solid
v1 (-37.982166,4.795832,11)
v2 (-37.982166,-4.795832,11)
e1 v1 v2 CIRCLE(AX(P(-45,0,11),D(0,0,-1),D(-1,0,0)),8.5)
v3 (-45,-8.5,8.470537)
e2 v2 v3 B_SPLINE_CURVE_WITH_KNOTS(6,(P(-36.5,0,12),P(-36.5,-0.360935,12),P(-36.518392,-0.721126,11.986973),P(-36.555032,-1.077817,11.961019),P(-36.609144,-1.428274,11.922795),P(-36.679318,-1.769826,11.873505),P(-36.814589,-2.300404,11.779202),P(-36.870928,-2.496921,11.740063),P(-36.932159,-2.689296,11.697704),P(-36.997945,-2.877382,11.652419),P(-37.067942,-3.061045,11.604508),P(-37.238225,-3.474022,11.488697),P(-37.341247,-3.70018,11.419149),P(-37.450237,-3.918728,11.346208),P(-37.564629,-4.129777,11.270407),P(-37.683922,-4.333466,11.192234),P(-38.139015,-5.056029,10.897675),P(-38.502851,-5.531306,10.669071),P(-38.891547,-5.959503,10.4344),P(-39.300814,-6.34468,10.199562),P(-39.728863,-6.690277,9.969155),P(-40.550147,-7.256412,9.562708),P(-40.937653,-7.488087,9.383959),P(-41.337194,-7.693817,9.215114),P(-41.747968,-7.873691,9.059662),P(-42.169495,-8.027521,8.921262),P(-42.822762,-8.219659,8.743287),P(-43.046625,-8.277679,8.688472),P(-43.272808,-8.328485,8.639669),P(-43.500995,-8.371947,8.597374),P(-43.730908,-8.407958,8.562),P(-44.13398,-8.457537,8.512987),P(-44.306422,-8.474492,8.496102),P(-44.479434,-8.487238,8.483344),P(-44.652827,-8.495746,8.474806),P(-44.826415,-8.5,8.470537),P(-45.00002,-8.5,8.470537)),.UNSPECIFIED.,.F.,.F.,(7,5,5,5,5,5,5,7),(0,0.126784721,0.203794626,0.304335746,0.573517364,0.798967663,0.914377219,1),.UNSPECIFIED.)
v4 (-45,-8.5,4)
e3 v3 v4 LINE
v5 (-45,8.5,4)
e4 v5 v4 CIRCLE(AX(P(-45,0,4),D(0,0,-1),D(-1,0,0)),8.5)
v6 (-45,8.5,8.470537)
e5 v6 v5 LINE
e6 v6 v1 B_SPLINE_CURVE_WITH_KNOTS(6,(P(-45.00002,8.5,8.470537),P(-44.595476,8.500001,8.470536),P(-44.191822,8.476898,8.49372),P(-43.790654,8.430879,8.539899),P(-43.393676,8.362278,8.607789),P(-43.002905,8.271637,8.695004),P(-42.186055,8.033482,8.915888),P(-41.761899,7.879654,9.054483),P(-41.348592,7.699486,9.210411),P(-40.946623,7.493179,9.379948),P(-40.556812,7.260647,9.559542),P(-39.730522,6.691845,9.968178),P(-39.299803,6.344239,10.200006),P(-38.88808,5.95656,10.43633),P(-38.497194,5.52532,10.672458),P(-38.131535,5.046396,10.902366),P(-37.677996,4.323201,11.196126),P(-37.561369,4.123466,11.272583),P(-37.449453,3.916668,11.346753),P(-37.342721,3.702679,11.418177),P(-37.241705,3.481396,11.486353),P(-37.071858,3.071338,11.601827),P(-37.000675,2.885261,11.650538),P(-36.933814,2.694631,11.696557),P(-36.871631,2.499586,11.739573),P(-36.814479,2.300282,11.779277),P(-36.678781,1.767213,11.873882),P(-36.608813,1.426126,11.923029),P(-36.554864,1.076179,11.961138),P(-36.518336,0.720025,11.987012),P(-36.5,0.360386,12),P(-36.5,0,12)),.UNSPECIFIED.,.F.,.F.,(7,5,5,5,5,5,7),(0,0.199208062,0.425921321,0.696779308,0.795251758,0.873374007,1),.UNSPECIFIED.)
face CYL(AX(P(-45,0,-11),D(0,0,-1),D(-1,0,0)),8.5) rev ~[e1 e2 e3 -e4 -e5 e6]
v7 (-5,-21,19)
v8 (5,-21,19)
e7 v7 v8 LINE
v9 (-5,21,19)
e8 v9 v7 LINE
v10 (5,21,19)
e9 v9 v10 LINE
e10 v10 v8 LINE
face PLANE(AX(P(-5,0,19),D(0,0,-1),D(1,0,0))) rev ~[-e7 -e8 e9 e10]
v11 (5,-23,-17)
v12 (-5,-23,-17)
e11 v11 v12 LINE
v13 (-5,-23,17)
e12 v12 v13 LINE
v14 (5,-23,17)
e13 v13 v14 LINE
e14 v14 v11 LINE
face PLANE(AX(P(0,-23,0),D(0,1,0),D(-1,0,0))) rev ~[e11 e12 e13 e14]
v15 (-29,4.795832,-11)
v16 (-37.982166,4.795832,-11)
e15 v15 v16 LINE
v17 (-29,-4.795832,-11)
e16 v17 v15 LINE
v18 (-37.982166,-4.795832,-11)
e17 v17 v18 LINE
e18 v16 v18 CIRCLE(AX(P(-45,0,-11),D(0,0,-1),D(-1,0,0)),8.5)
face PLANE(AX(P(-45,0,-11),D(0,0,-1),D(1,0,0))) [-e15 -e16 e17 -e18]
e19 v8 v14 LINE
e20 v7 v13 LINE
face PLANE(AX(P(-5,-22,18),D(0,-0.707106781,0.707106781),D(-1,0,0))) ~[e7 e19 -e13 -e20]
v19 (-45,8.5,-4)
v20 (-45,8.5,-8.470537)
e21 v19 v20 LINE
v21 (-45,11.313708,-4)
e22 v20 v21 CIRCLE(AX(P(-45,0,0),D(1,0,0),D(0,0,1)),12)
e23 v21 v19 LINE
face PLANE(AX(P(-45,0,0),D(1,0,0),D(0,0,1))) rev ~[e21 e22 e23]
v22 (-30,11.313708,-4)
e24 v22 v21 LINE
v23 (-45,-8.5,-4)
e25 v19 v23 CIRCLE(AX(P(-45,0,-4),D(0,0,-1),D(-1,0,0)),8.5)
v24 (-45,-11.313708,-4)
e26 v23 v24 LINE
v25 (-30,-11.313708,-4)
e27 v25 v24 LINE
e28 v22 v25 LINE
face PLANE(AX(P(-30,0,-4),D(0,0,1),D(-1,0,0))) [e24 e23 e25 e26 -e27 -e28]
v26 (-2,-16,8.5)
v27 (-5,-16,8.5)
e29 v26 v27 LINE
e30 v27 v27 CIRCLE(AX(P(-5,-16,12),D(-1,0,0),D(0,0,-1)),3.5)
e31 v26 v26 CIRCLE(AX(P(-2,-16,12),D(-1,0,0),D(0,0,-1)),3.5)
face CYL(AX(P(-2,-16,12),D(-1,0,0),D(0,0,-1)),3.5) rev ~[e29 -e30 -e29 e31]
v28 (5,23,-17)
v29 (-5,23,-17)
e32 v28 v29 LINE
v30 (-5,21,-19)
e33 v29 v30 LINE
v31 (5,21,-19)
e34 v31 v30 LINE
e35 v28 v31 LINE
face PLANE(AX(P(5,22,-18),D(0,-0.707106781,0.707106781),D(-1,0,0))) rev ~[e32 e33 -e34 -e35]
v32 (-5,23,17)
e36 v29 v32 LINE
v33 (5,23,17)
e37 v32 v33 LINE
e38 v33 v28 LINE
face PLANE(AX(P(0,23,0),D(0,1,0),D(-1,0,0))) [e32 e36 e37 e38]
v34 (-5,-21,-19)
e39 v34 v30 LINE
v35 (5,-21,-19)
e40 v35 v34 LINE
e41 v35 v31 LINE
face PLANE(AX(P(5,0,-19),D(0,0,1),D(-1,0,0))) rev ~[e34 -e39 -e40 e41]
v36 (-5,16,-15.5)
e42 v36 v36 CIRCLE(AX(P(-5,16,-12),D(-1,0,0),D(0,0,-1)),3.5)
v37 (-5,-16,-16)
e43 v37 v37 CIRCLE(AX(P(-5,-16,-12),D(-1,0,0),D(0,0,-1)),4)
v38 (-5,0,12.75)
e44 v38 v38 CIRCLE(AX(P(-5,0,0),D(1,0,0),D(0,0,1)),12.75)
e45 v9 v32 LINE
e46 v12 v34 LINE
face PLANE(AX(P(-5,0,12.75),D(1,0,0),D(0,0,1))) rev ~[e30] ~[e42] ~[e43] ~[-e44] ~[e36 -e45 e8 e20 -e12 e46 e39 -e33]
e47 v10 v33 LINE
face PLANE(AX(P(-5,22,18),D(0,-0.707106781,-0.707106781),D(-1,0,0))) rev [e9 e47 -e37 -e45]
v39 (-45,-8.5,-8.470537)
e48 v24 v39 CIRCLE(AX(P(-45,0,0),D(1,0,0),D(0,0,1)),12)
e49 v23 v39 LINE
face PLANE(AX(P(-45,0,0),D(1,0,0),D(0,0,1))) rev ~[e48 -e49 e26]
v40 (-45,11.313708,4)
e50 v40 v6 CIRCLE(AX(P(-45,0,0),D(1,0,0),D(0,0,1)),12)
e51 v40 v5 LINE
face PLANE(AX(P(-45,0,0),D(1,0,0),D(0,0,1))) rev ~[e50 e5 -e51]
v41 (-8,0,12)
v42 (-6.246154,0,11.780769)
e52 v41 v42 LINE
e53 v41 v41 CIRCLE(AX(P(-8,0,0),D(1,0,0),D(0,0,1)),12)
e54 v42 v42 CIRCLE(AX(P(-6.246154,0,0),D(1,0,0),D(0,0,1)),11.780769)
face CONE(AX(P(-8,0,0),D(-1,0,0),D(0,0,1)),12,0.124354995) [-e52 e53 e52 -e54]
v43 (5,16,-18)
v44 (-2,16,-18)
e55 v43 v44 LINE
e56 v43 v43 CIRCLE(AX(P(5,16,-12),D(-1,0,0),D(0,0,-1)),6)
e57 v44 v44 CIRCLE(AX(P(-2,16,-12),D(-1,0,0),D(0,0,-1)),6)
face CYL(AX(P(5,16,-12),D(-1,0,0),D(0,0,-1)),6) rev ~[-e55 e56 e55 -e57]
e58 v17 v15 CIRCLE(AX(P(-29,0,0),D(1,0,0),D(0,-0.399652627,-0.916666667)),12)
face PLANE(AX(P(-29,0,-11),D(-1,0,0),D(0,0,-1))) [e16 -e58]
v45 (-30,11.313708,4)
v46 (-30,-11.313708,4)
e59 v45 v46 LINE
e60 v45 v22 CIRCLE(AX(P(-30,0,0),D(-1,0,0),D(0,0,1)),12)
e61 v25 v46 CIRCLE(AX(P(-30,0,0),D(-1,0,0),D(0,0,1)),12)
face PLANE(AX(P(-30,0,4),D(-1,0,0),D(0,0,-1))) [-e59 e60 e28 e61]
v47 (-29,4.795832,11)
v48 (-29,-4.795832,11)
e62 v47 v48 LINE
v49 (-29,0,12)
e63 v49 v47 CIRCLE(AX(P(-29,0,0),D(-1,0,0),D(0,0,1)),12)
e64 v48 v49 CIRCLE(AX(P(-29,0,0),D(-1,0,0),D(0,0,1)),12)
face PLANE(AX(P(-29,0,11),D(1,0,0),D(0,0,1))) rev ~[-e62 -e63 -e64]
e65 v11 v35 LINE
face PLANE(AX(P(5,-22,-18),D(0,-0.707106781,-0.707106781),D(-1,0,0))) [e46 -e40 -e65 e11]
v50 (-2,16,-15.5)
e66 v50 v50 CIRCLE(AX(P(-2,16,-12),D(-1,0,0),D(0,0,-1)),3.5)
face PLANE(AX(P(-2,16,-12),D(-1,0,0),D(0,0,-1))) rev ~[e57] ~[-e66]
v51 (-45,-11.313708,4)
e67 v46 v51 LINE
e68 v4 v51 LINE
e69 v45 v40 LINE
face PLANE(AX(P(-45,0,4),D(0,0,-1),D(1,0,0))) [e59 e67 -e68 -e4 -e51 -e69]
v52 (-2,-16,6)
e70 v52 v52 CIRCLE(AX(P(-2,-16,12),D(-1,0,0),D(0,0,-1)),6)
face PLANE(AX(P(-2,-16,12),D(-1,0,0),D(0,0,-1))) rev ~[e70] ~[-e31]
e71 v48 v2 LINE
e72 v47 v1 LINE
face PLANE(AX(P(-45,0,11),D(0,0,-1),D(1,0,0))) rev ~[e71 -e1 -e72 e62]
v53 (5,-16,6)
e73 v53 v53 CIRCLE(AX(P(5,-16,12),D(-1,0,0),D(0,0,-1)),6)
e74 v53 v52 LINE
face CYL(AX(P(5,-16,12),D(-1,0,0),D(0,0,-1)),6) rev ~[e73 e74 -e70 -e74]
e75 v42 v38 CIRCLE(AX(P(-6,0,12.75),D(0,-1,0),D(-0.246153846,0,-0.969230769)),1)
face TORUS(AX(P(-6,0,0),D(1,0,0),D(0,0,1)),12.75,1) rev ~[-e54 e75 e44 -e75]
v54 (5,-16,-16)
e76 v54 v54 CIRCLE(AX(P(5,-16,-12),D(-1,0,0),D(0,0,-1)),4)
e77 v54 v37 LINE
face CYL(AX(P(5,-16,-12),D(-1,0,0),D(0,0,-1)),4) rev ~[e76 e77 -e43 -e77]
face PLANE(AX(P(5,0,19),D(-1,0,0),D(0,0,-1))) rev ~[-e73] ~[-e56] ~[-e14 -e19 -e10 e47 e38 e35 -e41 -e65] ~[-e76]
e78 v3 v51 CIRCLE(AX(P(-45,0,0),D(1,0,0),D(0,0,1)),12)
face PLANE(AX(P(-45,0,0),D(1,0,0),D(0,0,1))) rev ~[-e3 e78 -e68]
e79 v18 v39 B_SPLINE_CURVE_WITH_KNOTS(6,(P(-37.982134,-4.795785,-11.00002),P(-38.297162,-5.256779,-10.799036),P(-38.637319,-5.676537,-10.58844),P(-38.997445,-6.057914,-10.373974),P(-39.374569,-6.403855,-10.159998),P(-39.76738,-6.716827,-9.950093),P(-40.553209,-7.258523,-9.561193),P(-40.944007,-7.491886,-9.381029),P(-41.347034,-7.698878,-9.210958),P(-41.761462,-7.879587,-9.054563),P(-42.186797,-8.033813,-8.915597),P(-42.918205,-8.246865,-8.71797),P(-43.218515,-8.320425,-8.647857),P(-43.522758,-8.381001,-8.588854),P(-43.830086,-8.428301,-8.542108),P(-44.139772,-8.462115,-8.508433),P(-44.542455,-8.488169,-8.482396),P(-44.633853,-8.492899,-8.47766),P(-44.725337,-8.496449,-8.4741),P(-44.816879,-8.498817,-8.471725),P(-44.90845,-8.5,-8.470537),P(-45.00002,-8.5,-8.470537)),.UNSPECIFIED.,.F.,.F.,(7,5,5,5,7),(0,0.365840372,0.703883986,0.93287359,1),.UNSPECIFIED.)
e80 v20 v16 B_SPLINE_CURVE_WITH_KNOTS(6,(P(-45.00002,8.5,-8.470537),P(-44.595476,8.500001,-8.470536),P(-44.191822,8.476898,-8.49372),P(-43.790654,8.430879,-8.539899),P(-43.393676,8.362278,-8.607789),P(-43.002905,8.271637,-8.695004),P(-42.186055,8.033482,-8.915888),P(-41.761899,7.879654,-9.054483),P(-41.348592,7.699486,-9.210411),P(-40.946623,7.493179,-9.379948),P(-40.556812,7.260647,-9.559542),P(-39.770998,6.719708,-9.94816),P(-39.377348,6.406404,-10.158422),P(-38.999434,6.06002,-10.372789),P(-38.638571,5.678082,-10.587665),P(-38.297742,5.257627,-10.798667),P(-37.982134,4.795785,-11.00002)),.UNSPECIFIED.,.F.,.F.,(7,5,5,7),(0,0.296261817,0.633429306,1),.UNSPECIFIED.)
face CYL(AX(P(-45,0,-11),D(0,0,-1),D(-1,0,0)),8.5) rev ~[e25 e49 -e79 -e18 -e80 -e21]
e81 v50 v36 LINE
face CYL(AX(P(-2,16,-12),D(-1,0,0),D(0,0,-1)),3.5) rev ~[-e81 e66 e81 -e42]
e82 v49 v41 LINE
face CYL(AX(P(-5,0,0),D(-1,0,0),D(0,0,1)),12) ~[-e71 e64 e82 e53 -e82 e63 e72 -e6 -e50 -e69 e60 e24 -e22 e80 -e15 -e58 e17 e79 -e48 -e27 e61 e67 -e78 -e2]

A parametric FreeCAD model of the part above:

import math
import FreeCAD as App
import Part
import Sketcher

V = App.Vector
Q = App.Units.Quantity


def edges_at(feature, points):
    """Names of the edges that pass closest to the given points."""
    edges = feature.Shape.Edges
    near = lambda p: min(range(len(edges)), key=lambda i: edges[i].distToShape(Part.Vertex(*p))[0])
    return sorted({f"Edge{near(p) + 1}" for p in points})


def add_polygon(sketch, points):
    """Adds a closed chain of lines whose ends are joined by coincident constraints."""
    first, n = sketch.GeometryCount, len(points)
    for a, b in zip(points, points[1:] + points[:1]):
        sketch.addGeometry(Part.LineSegment(App.Vector(*a, 0), App.Vector(*b, 0)), False)
    for i in range(n):
        sketch.addConstraint(Sketcher.Constraint("Coincident", first + i, 2, first + (i + 1) % n, 1))

doc = App.newDocument("Part")
body = doc.addObject("PartDesign::Body", "Body")

# Sketch on XZ plane
sketch1 = body.newObject("Sketcher::SketchObject", "Sketch")
sketch1.AttachmentSupport = (doc.getObject("XZ_Plane"), [""])
sketch1.MapMode = "FlatFace"
add_polygon(sketch1, [(5, 19), (5, -19), (-5, -19), (-5, 19)])  # lines 0-3
sketch1.addConstraint([
    Sketcher.Constraint("Vertical", 0),
    Sketcher.Constraint("Horizontal", 1),
    Sketcher.Constraint("Vertical", 2),
    Sketcher.Constraint("Horizontal", 3),
    Sketcher.Constraint("Symmetric", 0, 2, 2, 2, -1, 1),
    Sketcher.Constraint("DistanceX", 1, 2, 1, 1, Q("10 mm")),
    Sketcher.Constraint("DistanceY", 0, 2, 0, 1, Q("38 mm")),
])
pad1 = body.newObject("PartDesign::Pad", "Pad")
pad1.Profile = sketch1
pad1.Length = 46
pad1.Midplane = True

# Sketch on XZ plane
sketch2 = body.newObject("Sketcher::SketchObject", "Sketch001")
sketch2.AttachmentSupport = (doc.getObject("XZ_Plane"), [""])
sketch2.MapMode = "FlatFace"
sketch2.addGeometry([
    Part.LineSegment(V(-5, 0, 0), V(-30, 0, 0)),  # 0
    Part.LineSegment(V(-30, 0, 0), V(-30, 4, 0)),  # 1
    Part.LineSegment(V(-30, 4, 0), V(-45, 4, 0)),  # 2
    Part.LineSegment(V(-45, 4, 0), V(-45, 12, 0)),  # 3
    Part.LineSegment(V(-45, 12, 0), V(-8, 12, 0)),  # 4
    Part.LineSegment(V(-8, 12, 0), V(-6.2, 11.8, 0)),  # 5
    Part.ArcOfCircle(Part.Circle(V(-6, 12.8, 0), V(0, 0, 1), 1), math.radians(-104), math.radians(0)),  # 6
    Part.LineSegment(V(-5, 12.8, 0), V(-5, 0, 0)),  # 7
], False)
sketch2.addConstraint([
    Sketcher.Constraint("Coincident", 0, 2, 1, 1),
    Sketcher.Constraint("Coincident", 1, 2, 2, 1),
    Sketcher.Constraint("Coincident", 2, 2, 3, 1),
    Sketcher.Constraint("Coincident", 3, 2, 4, 1),
    Sketcher.Constraint("Coincident", 4, 2, 5, 1),
    Sketcher.Constraint("Coincident", 5, 2, 6, 1),
    Sketcher.Constraint("Tangent", 6, 2, 7, 1),
    Sketcher.Constraint("Coincident", 7, 2, 0, 1),
    Sketcher.Constraint("Horizontal", 0),
    Sketcher.Constraint("Vertical", 1),
    Sketcher.Constraint("Horizontal", 2),
    Sketcher.Constraint("Vertical", 3),
    Sketcher.Constraint("Horizontal", 4),
    Sketcher.Constraint("Vertical", 7),
    Sketcher.Constraint("PointOnObject", 0, 2, -1),
    Sketcher.Constraint("Radius", 6, Q("1 mm")),
    Sketcher.Constraint("DistanceX", 2, 2, 2, 1, Q("15 mm")),
    Sketcher.Constraint("DistanceY", 1, 1, 1, 2, Q("4 mm")),
    Sketcher.Constraint("DistanceY", 3, 1, 3, 2, Q("8 mm")),
    Sketcher.Constraint("DistanceX", 4, 2, -1, 1, Q("8 mm")),
    Sketcher.Constraint("DistanceX", 1, 2, 4, 2, Q("22 mm")),
    Sketcher.Constraint("DistanceX", 4, 2, 6, 2, Q("3 mm")),
    Sketcher.Constraint("DistanceY", 7, 2, 7, 1, Q("12.75 mm")),
    Sketcher.Constraint("Distance", 5, Q("1.7675 mm")),
])
revolution = body.newObject("PartDesign::Revolution", "Revolution")
revolution.Profile = sketch2
revolution.ReferenceAxis = (sketch2, ["H_Axis"])
revolution.Angle = 360

# Sketch on XZ plane
sketch3 = body.newObject("Sketcher::SketchObject", "Sketch002")
sketch3.AttachmentSupport = (doc.getObject("XZ_Plane"), [""])
sketch3.MapMode = "FlatFace"
add_polygon(sketch3, [(-30, 4), (-30, -4), (-45, -4), (-45, 4)])  # lines 0-3
add_polygon(sketch3, [(-29, 11), (-45, 11), (-45, 12), (-29, 12)])  # lines 4-7
add_polygon(sketch3, [(-45, -11), (-29, -11), (-29, -12), (-45, -12)])  # lines 8-11
sketch3.addConstraint([
    Sketcher.Constraint("Vertical", 0),
    Sketcher.Constraint("Horizontal", 1),
    Sketcher.Constraint("Vertical", 2),
    Sketcher.Constraint("Horizontal", 3),
    Sketcher.Constraint("Horizontal", 4),
    Sketcher.Constraint("Vertical", 5),
    Sketcher.Constraint("Horizontal", 6),
    Sketcher.Constraint("Vertical", 7),
    Sketcher.Constraint("Horizontal", 8),
    Sketcher.Constraint("Vertical", 9),
    Sketcher.Constraint("Horizontal", 10),
    Sketcher.Constraint("Vertical", 11),
    Sketcher.Constraint("Symmetric", 7, 2, 8, 2, -1),
    Sketcher.Constraint("Symmetric", 5, 2, 10, 2, -1),
    Sketcher.Constraint("Vertical", 2, 2, 4, 2),
    Sketcher.Constraint("DistanceX", 1, 2, 1, 1, Q("15 mm")),
    Sketcher.Constraint("DistanceX", 4, 2, 4, 1, Q("16 mm")),
    Sketcher.Constraint("DistanceY", 0, 2, 0, 1, Q("8 mm")),
    Sketcher.Constraint("DistanceY", 5, 1, 5, 2, Q("1 mm")),
    Sketcher.Constraint("DistanceY", 0, 2, -1, 1, Q("4 mm")),
    Sketcher.Constraint("DistanceY", -1, 1, 5, 2, Q("12 mm")),
    Sketcher.Constraint("DistanceX", 0, 2, -1, 1, Q("30 mm")),
])
pocket1 = body.newObject("PartDesign::Pocket", "Pocket")
pocket1.Profile = sketch3
pocket1.Length = 46
pocket1.Midplane = True

# Sketch on XY plane
sketch4 = body.newObject("Sketcher::SketchObject", "Sketch003")
sketch4.AttachmentSupport = (doc.getObject("XY_Plane"), [""])
sketch4.MapMode = "FlatFace"
sketch4.AttachmentOffset = App.Placement(V(0, 0, -11), App.Rotation())
sketch4.addGeometry(Part.Circle(V(-45, 0, 0), V(0, 0, 1), 8), False)
sketch4.addConstraint([
    Sketcher.Constraint("PointOnObject", 0, 3, -1),
    Sketcher.Constraint("Diameter", 0, Q("17 mm")),
    Sketcher.Constraint("DistanceX", 0, 3, -1, 1, Q("45 mm")),
])
pocket2 = body.newObject("PartDesign::Pocket", "Pocket001")
pocket2.Profile = sketch4
pocket2.Length = 39
pocket2.Reversed = True

# Sketch on YZ plane
sketch5 = body.newObject("Sketcher::SketchObject", "Sketch004")
sketch5.AttachmentSupport = (doc.getObject("YZ_Plane"), [""])
sketch5.MapMode = "FlatFace"
sketch5.AttachmentOffset = App.Placement(V(0, 0, 5), App.Rotation())
sketch5.addGeometry([
    Part.Circle(V(16, -12, 0), V(0, 0, 1), 3.5),
    Part.Circle(V(-16, 12, 0), V(0, 0, 1), 3.5),
], False)
sketch5.addConstraint([
    Sketcher.Constraint("Equal", 0, 1),
    Sketcher.Constraint("Symmetric", 0, 3, 1, 3, -1, 1),
    Sketcher.Constraint("Diameter", 0, Q("7 mm")),
    Sketcher.Constraint("DistanceX", -1, 1, 0, 3, Q("16 mm")),
    Sketcher.Constraint("DistanceY", 0, 3, -1, 1, Q("12 mm")),
])
doc.recompute()
hole = body.newObject("PartDesign::Hole", "Hole")
hole.Profile = sketch5
hole.ThreadType = "None"
hole.Diameter = 7
hole.DepthType = "ThroughAll"
hole.HoleCutType = "Counterbore"
hole.HoleCutDiameter = 12
hole.HoleCutDepth = 7

# Sketch on YZ plane
sketch6 = body.newObject("Sketcher::SketchObject", "Sketch005")
sketch6.AttachmentSupport = (doc.getObject("YZ_Plane"), [""])
sketch6.MapMode = "FlatFace"
sketch6.AttachmentOffset = App.Placement(V(0, 0, 5), App.Rotation())
sketch6.addGeometry(Part.Circle(V(-16, -12, 0), V(0, 0, 1), 4), False)
sketch6.addConstraint([
    Sketcher.Constraint("Diameter", 0, Q("8 mm")),
    Sketcher.Constraint("DistanceX", 0, 3, -1, 1, Q("16 mm")),
    Sketcher.Constraint("DistanceY", 0, 3, -1, 1, Q("12 mm")),
])
doc.recompute()
hole2 = body.newObject("PartDesign::Hole", "Hole001")
hole2.Profile = sketch6
hole2.ThreadType = "None"
hole2.Diameter = 8
hole2.DepthType = "ThroughAll"
doc.recompute()

chamfer = body.newObject("PartDesign::Chamfer", "Chamfer")
chamfer.Base = (hole2, edges_at(hole2, [
    (0, 23, -19),
    (0, -23, -19),
    (0, -23, 19),
    (0, 23, 19),
]))
chamfer.Size = 2

doc.recompute()
